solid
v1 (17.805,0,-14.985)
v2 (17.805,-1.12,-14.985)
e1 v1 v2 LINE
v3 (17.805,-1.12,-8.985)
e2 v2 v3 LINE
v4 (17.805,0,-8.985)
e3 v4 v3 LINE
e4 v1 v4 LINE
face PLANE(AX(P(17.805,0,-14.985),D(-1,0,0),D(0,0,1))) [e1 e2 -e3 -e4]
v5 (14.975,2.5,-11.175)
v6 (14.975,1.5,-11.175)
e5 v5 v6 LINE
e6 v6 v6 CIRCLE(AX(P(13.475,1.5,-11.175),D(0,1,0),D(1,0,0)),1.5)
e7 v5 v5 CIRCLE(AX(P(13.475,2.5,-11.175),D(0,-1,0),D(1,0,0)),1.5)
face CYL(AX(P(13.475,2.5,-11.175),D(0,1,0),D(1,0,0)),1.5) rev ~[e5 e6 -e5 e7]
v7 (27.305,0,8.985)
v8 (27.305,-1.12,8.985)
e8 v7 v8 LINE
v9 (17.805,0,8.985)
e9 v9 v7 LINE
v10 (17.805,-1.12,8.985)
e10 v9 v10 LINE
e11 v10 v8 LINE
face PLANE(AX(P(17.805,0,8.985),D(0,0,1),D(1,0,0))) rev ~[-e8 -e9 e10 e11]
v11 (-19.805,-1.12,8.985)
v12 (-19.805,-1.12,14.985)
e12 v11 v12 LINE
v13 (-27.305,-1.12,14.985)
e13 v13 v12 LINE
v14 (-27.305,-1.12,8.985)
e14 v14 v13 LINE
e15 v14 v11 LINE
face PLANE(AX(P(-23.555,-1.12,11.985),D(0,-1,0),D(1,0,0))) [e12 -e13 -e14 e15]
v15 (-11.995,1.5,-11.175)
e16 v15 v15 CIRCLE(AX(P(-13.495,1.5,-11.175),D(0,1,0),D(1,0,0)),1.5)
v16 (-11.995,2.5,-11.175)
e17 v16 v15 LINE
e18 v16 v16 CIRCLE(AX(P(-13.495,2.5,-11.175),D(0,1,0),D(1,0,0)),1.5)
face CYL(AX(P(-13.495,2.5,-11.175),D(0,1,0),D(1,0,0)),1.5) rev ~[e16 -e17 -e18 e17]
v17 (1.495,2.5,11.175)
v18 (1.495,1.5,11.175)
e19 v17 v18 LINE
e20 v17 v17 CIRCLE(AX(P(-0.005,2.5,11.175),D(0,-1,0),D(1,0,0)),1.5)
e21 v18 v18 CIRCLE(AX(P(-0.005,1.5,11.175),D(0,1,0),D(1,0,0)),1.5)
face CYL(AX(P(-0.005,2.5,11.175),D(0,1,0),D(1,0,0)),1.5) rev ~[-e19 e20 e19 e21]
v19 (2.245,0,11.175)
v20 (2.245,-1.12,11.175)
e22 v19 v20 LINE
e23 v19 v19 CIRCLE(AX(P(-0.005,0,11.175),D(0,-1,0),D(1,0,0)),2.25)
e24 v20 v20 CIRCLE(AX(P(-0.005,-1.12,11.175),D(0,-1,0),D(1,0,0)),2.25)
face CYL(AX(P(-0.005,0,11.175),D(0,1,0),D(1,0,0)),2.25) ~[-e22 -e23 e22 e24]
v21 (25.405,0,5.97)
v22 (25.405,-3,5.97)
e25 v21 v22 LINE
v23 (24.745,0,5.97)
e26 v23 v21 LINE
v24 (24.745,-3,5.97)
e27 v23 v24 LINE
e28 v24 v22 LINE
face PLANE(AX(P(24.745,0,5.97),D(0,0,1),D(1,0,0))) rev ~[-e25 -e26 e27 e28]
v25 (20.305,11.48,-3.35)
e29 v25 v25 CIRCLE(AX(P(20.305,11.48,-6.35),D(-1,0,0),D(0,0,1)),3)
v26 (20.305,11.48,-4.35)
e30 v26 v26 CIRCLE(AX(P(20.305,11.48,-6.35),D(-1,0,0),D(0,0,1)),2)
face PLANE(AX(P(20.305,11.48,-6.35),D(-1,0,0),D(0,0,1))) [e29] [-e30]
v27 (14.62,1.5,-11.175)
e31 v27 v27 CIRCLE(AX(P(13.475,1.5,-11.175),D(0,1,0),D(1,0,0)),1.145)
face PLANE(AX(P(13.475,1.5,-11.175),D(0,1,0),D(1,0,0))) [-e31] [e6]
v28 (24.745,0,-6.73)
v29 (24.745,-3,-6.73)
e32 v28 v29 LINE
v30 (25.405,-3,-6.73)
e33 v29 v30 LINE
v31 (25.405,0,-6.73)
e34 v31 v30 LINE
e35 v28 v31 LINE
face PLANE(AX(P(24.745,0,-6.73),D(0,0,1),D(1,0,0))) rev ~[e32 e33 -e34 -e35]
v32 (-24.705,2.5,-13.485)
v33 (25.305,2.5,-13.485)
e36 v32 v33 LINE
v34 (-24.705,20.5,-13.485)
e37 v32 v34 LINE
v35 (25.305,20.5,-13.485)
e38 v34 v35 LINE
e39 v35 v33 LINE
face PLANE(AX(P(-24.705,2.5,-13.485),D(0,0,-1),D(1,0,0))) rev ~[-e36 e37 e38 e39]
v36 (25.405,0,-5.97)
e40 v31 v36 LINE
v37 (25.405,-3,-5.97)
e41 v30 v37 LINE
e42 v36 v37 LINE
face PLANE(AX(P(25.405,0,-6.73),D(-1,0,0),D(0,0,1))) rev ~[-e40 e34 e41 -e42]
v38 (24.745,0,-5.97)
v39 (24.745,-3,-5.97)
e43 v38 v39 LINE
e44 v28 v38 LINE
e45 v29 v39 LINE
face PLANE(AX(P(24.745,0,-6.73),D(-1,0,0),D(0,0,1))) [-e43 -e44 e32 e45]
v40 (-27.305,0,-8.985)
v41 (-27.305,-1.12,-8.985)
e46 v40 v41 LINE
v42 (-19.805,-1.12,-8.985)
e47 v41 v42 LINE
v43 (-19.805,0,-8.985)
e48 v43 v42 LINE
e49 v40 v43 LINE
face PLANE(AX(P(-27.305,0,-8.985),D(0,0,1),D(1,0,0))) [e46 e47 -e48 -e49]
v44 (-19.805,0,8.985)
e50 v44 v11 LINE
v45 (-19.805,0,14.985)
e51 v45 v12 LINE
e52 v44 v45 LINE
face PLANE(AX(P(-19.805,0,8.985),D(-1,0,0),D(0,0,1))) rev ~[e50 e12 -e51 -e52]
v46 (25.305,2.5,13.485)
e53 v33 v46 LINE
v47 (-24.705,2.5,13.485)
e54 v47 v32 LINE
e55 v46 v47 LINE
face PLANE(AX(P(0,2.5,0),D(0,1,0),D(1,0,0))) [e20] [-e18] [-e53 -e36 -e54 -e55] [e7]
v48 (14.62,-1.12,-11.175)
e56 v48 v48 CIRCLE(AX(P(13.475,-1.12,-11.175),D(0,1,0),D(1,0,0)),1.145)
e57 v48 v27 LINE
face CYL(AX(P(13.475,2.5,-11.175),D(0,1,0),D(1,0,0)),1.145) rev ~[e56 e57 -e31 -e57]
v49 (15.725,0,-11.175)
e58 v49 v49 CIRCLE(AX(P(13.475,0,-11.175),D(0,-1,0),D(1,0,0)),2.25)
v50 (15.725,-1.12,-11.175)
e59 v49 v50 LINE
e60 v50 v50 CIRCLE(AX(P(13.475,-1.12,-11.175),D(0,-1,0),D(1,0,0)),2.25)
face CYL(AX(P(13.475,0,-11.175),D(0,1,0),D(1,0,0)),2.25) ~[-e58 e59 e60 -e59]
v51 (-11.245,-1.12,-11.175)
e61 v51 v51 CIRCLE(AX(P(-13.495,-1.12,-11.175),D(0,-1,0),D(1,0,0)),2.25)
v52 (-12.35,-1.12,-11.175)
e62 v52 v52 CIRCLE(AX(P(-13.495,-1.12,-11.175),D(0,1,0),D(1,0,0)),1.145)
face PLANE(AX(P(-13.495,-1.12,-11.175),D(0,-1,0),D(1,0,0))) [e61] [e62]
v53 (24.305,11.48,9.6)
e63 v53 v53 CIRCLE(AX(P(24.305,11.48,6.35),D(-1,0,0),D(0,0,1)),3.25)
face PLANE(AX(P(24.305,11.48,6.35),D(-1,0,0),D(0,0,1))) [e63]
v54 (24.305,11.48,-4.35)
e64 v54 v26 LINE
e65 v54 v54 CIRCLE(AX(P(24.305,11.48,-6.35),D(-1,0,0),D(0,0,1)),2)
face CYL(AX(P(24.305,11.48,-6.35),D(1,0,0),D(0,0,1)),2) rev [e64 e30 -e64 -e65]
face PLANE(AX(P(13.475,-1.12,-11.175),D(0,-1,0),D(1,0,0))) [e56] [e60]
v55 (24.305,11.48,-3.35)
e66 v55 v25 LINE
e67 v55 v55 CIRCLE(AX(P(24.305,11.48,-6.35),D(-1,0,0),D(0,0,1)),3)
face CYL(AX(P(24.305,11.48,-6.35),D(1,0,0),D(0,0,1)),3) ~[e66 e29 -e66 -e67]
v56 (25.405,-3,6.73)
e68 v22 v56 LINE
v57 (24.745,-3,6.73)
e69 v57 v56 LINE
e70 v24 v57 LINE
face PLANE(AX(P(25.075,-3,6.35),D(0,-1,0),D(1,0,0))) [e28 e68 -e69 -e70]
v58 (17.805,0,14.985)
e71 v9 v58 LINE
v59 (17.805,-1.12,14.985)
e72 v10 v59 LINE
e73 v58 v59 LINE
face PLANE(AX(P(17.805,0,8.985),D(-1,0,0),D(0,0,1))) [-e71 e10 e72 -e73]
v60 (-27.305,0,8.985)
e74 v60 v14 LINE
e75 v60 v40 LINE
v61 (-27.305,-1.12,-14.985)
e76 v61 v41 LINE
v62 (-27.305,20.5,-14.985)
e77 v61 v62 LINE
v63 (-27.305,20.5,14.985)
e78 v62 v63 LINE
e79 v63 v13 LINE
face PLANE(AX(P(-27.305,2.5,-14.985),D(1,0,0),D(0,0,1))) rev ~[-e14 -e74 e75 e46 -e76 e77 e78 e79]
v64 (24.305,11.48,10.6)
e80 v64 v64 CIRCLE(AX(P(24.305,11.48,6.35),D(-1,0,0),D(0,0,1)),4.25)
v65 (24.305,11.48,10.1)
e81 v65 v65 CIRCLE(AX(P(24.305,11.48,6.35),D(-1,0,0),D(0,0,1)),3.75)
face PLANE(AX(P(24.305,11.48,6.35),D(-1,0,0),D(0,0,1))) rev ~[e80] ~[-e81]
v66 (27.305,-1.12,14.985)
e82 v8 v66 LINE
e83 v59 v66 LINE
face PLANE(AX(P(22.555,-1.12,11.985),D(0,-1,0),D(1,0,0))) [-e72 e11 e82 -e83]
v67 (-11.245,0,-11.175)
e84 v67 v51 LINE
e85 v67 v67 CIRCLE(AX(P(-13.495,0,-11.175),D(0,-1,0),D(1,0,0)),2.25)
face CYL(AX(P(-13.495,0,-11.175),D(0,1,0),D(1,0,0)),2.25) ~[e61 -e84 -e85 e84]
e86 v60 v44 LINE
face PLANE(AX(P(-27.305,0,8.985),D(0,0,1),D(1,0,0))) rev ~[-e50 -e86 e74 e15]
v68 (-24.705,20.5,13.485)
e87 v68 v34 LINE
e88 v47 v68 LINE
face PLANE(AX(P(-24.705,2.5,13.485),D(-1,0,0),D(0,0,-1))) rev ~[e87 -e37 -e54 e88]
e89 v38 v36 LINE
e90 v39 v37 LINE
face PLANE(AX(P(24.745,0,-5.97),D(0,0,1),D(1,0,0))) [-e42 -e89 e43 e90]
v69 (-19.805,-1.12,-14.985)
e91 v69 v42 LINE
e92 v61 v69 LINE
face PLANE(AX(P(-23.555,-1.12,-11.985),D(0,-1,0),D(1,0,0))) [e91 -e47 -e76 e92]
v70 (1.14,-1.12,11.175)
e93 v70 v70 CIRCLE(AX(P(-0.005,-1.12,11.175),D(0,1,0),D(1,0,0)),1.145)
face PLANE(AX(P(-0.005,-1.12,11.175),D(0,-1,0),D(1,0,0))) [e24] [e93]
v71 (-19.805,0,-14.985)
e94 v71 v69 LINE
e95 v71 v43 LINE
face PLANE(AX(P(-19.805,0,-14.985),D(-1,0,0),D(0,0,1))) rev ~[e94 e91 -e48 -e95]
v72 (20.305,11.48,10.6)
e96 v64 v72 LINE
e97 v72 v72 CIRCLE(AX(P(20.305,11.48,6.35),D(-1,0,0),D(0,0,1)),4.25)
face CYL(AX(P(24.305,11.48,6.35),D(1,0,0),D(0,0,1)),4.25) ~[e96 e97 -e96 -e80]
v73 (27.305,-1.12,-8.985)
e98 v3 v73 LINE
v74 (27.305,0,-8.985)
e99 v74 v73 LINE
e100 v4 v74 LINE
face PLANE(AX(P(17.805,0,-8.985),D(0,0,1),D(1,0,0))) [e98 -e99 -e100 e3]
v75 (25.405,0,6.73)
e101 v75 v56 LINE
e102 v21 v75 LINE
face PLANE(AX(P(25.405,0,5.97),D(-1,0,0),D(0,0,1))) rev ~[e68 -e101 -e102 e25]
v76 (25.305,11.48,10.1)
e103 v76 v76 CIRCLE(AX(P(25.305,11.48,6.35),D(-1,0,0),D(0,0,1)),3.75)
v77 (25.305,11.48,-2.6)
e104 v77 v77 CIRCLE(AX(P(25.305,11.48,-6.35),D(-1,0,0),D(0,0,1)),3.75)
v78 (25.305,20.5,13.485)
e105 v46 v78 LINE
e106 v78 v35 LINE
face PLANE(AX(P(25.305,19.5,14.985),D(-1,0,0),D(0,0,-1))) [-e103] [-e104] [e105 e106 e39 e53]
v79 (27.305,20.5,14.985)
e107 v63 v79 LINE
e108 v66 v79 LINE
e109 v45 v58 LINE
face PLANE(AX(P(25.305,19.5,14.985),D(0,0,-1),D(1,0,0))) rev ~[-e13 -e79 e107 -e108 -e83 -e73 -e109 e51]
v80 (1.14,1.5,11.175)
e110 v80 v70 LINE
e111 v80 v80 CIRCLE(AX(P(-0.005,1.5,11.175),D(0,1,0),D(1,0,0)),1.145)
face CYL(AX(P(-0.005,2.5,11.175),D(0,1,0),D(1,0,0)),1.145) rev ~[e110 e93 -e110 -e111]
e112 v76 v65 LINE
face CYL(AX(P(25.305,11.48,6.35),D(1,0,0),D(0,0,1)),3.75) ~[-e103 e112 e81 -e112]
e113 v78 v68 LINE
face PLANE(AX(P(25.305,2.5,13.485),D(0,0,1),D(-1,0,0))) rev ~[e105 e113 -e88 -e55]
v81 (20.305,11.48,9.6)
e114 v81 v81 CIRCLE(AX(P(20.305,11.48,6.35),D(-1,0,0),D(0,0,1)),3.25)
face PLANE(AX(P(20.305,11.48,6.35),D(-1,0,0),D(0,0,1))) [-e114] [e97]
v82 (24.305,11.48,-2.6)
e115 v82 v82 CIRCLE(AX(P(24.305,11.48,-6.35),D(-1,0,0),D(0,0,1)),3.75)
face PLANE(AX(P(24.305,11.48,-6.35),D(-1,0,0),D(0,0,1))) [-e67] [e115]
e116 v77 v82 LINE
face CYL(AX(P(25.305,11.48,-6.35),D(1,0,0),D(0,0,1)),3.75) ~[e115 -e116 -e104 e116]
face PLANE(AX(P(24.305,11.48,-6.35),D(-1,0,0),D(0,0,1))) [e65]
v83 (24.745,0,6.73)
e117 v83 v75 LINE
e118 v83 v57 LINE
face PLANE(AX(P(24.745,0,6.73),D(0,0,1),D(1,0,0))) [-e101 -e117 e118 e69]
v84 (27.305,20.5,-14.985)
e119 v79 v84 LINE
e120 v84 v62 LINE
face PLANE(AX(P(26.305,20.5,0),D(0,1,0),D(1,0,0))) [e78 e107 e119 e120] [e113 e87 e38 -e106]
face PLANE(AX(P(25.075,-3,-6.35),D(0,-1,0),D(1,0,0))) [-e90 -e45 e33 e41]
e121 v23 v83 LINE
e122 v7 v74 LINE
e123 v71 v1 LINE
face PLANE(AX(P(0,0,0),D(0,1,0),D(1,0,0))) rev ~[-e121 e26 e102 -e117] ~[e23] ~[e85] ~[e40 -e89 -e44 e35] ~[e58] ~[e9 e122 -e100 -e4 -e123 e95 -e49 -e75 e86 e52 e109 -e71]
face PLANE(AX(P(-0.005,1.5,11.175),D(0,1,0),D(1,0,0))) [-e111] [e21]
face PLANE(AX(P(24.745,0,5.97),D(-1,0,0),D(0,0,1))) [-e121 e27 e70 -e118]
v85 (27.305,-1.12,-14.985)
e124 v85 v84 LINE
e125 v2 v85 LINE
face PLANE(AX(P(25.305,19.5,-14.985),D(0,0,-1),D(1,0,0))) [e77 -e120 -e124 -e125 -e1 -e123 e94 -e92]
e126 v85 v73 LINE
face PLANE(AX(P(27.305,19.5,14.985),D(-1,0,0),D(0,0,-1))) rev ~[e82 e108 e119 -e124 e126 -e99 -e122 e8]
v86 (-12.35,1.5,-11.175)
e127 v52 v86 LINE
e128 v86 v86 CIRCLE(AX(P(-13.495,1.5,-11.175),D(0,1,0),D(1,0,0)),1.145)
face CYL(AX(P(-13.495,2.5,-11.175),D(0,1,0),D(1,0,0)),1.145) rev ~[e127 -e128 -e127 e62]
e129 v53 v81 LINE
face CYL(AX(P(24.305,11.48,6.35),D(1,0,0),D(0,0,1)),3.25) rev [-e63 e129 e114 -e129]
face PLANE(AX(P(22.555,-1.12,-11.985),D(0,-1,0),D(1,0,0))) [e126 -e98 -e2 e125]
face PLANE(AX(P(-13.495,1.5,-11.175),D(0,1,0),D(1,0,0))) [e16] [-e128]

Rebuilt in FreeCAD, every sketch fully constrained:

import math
import FreeCAD as App
import Part
import Sketcher

V = App.Vector

doc = App.newDocument("Part")
params = doc.addObject("Spreadsheet::Sheet", "Params")
for row, (alias, value) in enumerate([
    ("sketch1_width", "54.61 mm"),
    ("sketch1_height", "29.97 mm"),
    ("pad1_length", "2.5 mm"),
    ("sketch2_radius", "2 mm"),
    ("sketch2_width", "28 mm"),
    ("sketch2_width2", "24 mm"),
    ("sketch2_height", "1.5 mm"),
    ("sketch2_height2", "29.97 mm"),
    ("pad2_length", "17 mm"),
    ("sketch3_width", "26 mm"),
    ("sketch3_height", "17 mm"),
    ("sketch4_diameter", "2.29 mm"),
    ("sketch5_diameter", "4.5 mm"),
    ("sketch5_height", "6 mm"),
    ("sketch5_width", "7.5 mm"),
    ("sketch5_width2", "9.5 mm"),
    ("pad3_length", "1.12 mm"),
    ("sketch6_diameter", "2.29 mm"),
    ("sketch7_diameter", "3 mm"),
    ("pocket4_length", "1 mm"),
    ("sketch8_width", "0.66 mm"),
    ("sketch8_height", "0.76 mm"),
    ("pad4_length", "3 mm"),
    ("sketch9_diameter", "7.5 mm"),
    ("pad5_length", "1 mm"),
    ("sketch10_diameter", "6 mm"),
    ("sketch10_diameter2", "4 mm"),
    ("pad6_length", "4 mm"),
    ("sketch11_diameter", "8.5 mm"),
    ("sketch11_diameter2", "6.5 mm"),
    ("pad7_length", "4 mm"),
    ("sketch12_width", "26 mm"),
    ("sketch12_height", "4 mm"),
    ("pocket5_length", "17 mm"),
    ("sketch13_height", "1.5 mm"),
    ("sketch13_width", "52.61 mm"),
    ("sketch13_width2", "50.01 mm"),
    ("sketch13_height2", "29.97 mm"),
    ("pad8_length", "18 mm"),
    ("sketch14_width", "2 mm"),
    ("sketch14_height", "29.97 mm"),
    ("pad9_length", "1 mm"),
], start=1):
    params.set(f"A{row}", alias)
    params.set(f"B{row}", "=" + value)
    params.setAlias(f"B{row}", alias)

body = doc.addObject("PartDesign::Body", "Body")

sketch1 = body.newObject("Sketcher::SketchObject", "Sketch")
sketch1.AttachmentSupport = (doc.getObject("XZ_Plane"), [""])
sketch1.MapMode = "FlatFace"
sketch1.addGeometry(Part.LineSegment(V(-27, -15, 0), V(-27, 15, 0)), False)
sketch1.addGeometry(Part.LineSegment(V(-27, 15, 0), V(27, 15, 0)), False)
sketch1.addGeometry(Part.LineSegment(V(27, 15, 0), V(27, -15, 0)), False)
sketch1.addGeometry(Part.LineSegment(V(27, -15, 0), V(-27, -15, 0)), False)
sketch1.addConstraint(Sketcher.Constraint("Coincident", 0, 2, 1, 1))
sketch1.addConstraint(Sketcher.Constraint("Coincident", 1, 2, 2, 1))
sketch1.addConstraint(Sketcher.Constraint("Coincident", 2, 2, 3, 1))
sketch1.addConstraint(Sketcher.Constraint("Coincident", 3, 2, 0, 1))
sketch1.addConstraint(Sketcher.Constraint("Vertical", 0))
sketch1.addConstraint(Sketcher.Constraint("Horizontal", 1))
sketch1.addConstraint(Sketcher.Constraint("Vertical", 2))
sketch1.addConstraint(Sketcher.Constraint("Horizontal", 3))
sketch1.addConstraint(Sketcher.Constraint("Symmetric", 0, 2, 2, 2, -1, 1))
sketch1.addConstraint(Sketcher.Constraint("DistanceX", 1, 1, 1, 2, 54.61))
sketch1.addConstraint(Sketcher.Constraint("DistanceY", 0, 1, 0, 2, 29.97))
sketch1.setExpression("Constraints[9]", "Params.sketch1_width")
sketch1.setExpression("Constraints[10]", "Params.sketch1_height")
pad1 = body.newObject("PartDesign::Pad", "Pad")
pad1.Profile = sketch1
pad1.setExpression("Length", "Params.pad1_length")
pad1.Reversed = True

sketch2 = body.newObject("Sketcher::SketchObject", "Sketch001")
sketch2.AttachmentSupport = (doc.getObject("XZ_Plane"), [""])
sketch2.MapMode = "FlatFace"
sketch2.AttachmentOffset = App.Placement(V(0, 0, -2.5), App.Rotation())
sketch2.addGeometry(Part.LineSegment(V(-0.7, 15, 0), V(27.3, 15, 0)), False)
sketch2.addGeometry(Part.LineSegment(V(27.3, 15, 0), V(27.3, -15, 0)), False)
sketch2.addGeometry(Part.LineSegment(V(27.3, -15, 0), V(-0.7, -15, 0)), False)
sketch2.addGeometry(Part.LineSegment(V(-0.7, -15, 0), V(-0.7, -13.5, 0)), False)
sketch2.addGeometry(Part.LineSegment(V(-0.7, -13.5, 0), V(23.3, -13.5, 0)), False)
sketch2.addGeometry(Part.ArcOfCircle(Part.Circle(V(23.3, -11.5, 0), V(0, 0, 1), 2), math.radians(-90), math.radians(0)), False)
sketch2.addGeometry(Part.LineSegment(V(25.3, -11.5, 0), V(25.3, 11.5, 0)), False)
sketch2.addGeometry(Part.ArcOfCircle(Part.Circle(V(23.3, 11.5, 0), V(0, 0, 1), 2), math.radians(0), math.radians(90)), False)
sketch2.addGeometry(Part.LineSegment(V(23.3, 13.5, 0), V(-0.7, 13.5, 0)), False)
sketch2.addGeometry(Part.LineSegment(V(-0.7, 13.5, 0), V(-0.7, 15, 0)), False)
sketch2.addConstraint(Sketcher.Constraint("Coincident", 0, 2, 1, 1))
sketch2.addConstraint(Sketcher.Constraint("Coincident", 1, 2, 2, 1))
sketch2.addConstraint(Sketcher.Constraint("Coincident", 2, 2, 3, 1))
sketch2.addConstraint(Sketcher.Constraint("Coincident", 3, 2, 4, 1))
sketch2.addConstraint(Sketcher.Constraint("Tangent", 4, 2, 5, 1))
sketch2.addConstraint(Sketcher.Constraint("Tangent", 5, 2, 6, 1))
sketch2.addConstraint(Sketcher.Constraint("Tangent", 6, 2, 7, 1))
sketch2.addConstraint(Sketcher.Constraint("Tangent", 7, 2, 8, 1))
sketch2.addConstraint(Sketcher.Constraint("Coincident", 8, 2, 9, 1))
sketch2.addConstraint(Sketcher.Constraint("Coincident", 9, 2, 0, 1))
sketch2.addConstraint(Sketcher.Constraint("Horizontal", 0))
sketch2.addConstraint(Sketcher.Constraint("Vertical", 1))
sketch2.addConstraint(Sketcher.Constraint("Horizontal", 2))
sketch2.addConstraint(Sketcher.Constraint("Vertical", 3))
sketch2.addConstraint(Sketcher.Constraint("Horizontal", 4))
sketch2.addConstraint(Sketcher.Constraint("Vertical", 6))
sketch2.addConstraint(Sketcher.Constraint("Horizontal", 8))
sketch2.addConstraint(Sketcher.Constraint("Vertical", 9))
sketch2.addConstraint(Sketcher.Constraint("Equal", 5, 7))
sketch2.addConstraint(Sketcher.Constraint("Symmetric", 3, 2, 8, 2, -1))
sketch2.addConstraint(Sketcher.Constraint("Equal", 3, 9))
sketch2.addConstraint(Sketcher.Constraint("Radius", 5, 2.0))
sketch2.addConstraint(Sketcher.Constraint("DistanceX", 0, 1, 0, 2, 28.0))
sketch2.addConstraint(Sketcher.Constraint("DistanceX", 4, 1, 4, 2, 24.0))
sketch2.addConstraint(Sketcher.Constraint("DistanceY", 3, 1, 3, 2, 1.5))
sketch2.addConstraint(Sketcher.Constraint("DistanceY", 1, 2, 1, 1, 29.97))
sketch2.addConstraint(Sketcher.Constraint("DistanceX", -1, 1, 5, 3, 23.305))
sketch2.setExpression("Constraints[21]", "Params.sketch2_radius")
sketch2.setExpression("Constraints[22]", "Params.sketch2_width")
sketch2.setExpression("Constraints[23]", "Params.sketch2_width2")
sketch2.setExpression("Constraints[24]", "Params.sketch2_height")
sketch2.setExpression("Constraints[25]", "Params.sketch2_height2")
pad2 = body.newObject("PartDesign::Pad", "Pad001")
pad2.Profile = sketch2
pad2.setExpression("Length", "Params.pad2_length")
pad2.Reversed = True

sketch3 = body.newObject("Sketcher::SketchObject", "Sketch002")
sketch3.AttachmentSupport = (doc.getObject("XY_Plane"), [""])
sketch3.MapMode = "FlatFace"
sketch3.AttachmentOffset = App.Placement(V(0, 0, 14.985), App.Rotation())
sketch3.addGeometry(Part.LineSegment(V(-1, 2, 0), V(25, 20, 0)), False)
sketch3.addGeometry(Part.LineSegment(V(25, 20, 0), V(-1, 20, 0)), False)
sketch3.addGeometry(Part.LineSegment(V(-1, 20, 0), V(-1, 2, 0)), False)
sketch3.addConstraint(Sketcher.Constraint("Coincident", 0, 2, 1, 1))
sketch3.addConstraint(Sketcher.Constraint("Coincident", 1, 2, 2, 1))
sketch3.addConstraint(Sketcher.Constraint("Coincident", 2, 2, 0, 1))
sketch3.addConstraint(Sketcher.Constraint("Horizontal", 1))
sketch3.addConstraint(Sketcher.Constraint("Vertical", 2))
sketch3.addConstraint(Sketcher.Constraint("DistanceX", 1, 2, 1, 1, 26.0))
sketch3.addConstraint(Sketcher.Constraint("DistanceY", 2, 2, 2, 1, 17.0))
sketch3.addConstraint(Sketcher.Constraint("DistanceY", -1, 1, 0, 2, 19.5))
sketch3.addConstraint(Sketcher.Constraint("DistanceX", -1, 1, 0, 2, 25.305))
sketch3.setExpression("Constraints[5]", "Params.sketch3_width")
sketch3.setExpression("Constraints[6]", "Params.sketch3_height")
pocket1 = body.newObject("PartDesign::Pocket", "Pocket")
pocket1.Profile = sketch3
pocket1.Type = "ThroughAll"

sketch4 = body.newObject("Sketcher::SketchObject", "Sketch003")
sketch4.AttachmentSupport = (doc.getObject("XZ_Plane"), [""])
sketch4.MapMode = "FlatFace"
sketch4.AttachmentOffset = App.Placement(V(0, 0, -2.5), App.Rotation())
sketch4.addGeometry(Part.Circle(V(-13.5, -11.2, 0), V(0, 0, 1), 1.1), False)
sketch4.addGeometry(Part.Circle(V(0, 11.2, 0), V(0, 0, 1), 1.1), False)
sketch4.addGeometry(Part.Circle(V(13.5, -11.2, 0), V(0, 0, 1), 1.1), False)
sketch4.addConstraint(Sketcher.Constraint("Equal", 0, 1))
sketch4.addConstraint(Sketcher.Constraint("Equal", 1, 2))
sketch4.addConstraint(Sketcher.Constraint("Horizontal", 0, 3, 2, 3))
sketch4.addConstraint(Sketcher.Constraint("Diameter", 0, 2.29))
sketch4.addConstraint(Sketcher.Constraint("DistanceX", 0, 3, 1, 3, 13.49))
sketch4.addConstraint(Sketcher.Constraint("DistanceY", 0, 3, 1, 3, 22.35))
sketch4.addConstraint(Sketcher.Constraint("DistanceX", 1, 3, 2, 3, 13.48))
sketch4.addConstraint(Sketcher.Constraint("DistanceX", 0, 3, -1, 1, 13.495))
sketch4.addConstraint(Sketcher.Constraint("DistanceY", 0, 3, -1, 1, 11.175))
sketch4.setExpression("Constraints[3]", "Params.sketch4_diameter")
pocket2 = body.newObject("PartDesign::Pocket", "Pocket001")
pocket2.Profile = sketch4
pocket2.Type = "ThroughAll"
pocket2.Reversed = True

sketch5 = body.newObject("Sketcher::SketchObject", "Sketch004")
sketch5.AttachmentSupport = (doc.getObject("XZ_Plane"), [""])
sketch5.MapMode = "FlatFace"
sketch5.addGeometry(Part.Circle(V(0, 11.2, 0), V(0, 0, 1), 2.2), False)
sketch5.addGeometry(Part.Circle(V(13.5, -11.2, 0), V(0, 0, 1), 2.2), False)
sketch5.addGeometry(Part.Circle(V(-13.5, -11.2, 0), V(0, 0, 1), 2.2), False)
sketch5.addGeometry(Part.LineSegment(V(-27.3, 15, 0), V(-27.3, 9, 0)), False)
sketch5.addGeometry(Part.LineSegment(V(-27.3, 9, 0), V(-19.8, 9, 0)), False)
sketch5.addGeometry(Part.LineSegment(V(-19.8, 9, 0), V(-19.8, 15, 0)), False)
sketch5.addGeometry(Part.LineSegment(V(-19.8, 15, 0), V(-27.3, 15, 0)), False)
sketch5.addGeometry(Part.LineSegment(V(17.8, 15, 0), V(17.8, 9, 0)), False)
sketch5.addGeometry(Part.LineSegment(V(17.8, 9, 0), V(27.3, 9, 0)), False)
sketch5.addGeometry(Part.LineSegment(V(27.3, 9, 0), V(27.3, 15, 0)), False)
sketch5.addGeometry(Part.LineSegment(V(27.3, 15, 0), V(17.8, 15, 0)), False)
sketch5.addGeometry(Part.LineSegment(V(17.8, -9, 0), V(17.8, -15, 0)), False)
sketch5.addGeometry(Part.LineSegment(V(17.8, -15, 0), V(27.3, -15, 0)), False)
sketch5.addGeometry(Part.LineSegment(V(27.3, -15, 0), V(27.3, -9, 0)), False)
sketch5.addGeometry(Part.LineSegment(V(27.3, -9, 0), V(17.8, -9, 0)), False)
sketch5.addGeometry(Part.LineSegment(V(-27.3, -9, 0), V(-27.3, -15, 0)), False)
sketch5.addGeometry(Part.LineSegment(V(-27.3, -15, 0), V(-19.8, -15, 0)), False)
sketch5.addGeometry(Part.LineSegment(V(-19.8, -15, 0), V(-19.8, -9, 0)), False)
sketch5.addGeometry(Part.LineSegment(V(-19.8, -9, 0), V(-27.3, -9, 0)), False)
sketch5.addConstraint(Sketcher.Constraint("Coincident", 3, 2, 4, 1))
sketch5.addConstraint(Sketcher.Constraint("Coincident", 4, 2, 5, 1))
sketch5.addConstraint(Sketcher.Constraint("Coincident", 5, 2, 6, 1))
sketch5.addConstraint(Sketcher.Constraint("Coincident", 6, 2, 3, 1))
sketch5.addConstraint(Sketcher.Constraint("Coincident", 7, 2, 8, 1))
sketch5.addConstraint(Sketcher.Constraint("Coincident", 8, 2, 9, 1))
sketch5.addConstraint(Sketcher.Constraint("Coincident", 9, 2, 10, 1))
sketch5.addConstraint(Sketcher.Constraint("Coincident", 10, 2, 7, 1))
sketch5.addConstraint(Sketcher.Constraint("Coincident", 11, 2, 12, 1))
sketch5.addConstraint(Sketcher.Constraint("Coincident", 12, 2, 13, 1))
sketch5.addConstraint(Sketcher.Constraint("Coincident", 13, 2, 14, 1))
sketch5.addConstraint(Sketcher.Constraint("Coincident", 14, 2, 11, 1))
sketch5.addConstraint(Sketcher.Constraint("Coincident", 15, 2, 16, 1))
sketch5.addConstraint(Sketcher.Constraint("Coincident", 16, 2, 17, 1))
sketch5.addConstraint(Sketcher.Constraint("Coincident", 17, 2, 18, 1))
sketch5.addConstraint(Sketcher.Constraint("Coincident", 18, 2, 15, 1))
sketch5.addConstraint(Sketcher.Constraint("Vertical", 3))
sketch5.addConstraint(Sketcher.Constraint("Horizontal", 4))
sketch5.addConstraint(Sketcher.Constraint("Vertical", 5))
sketch5.addConstraint(Sketcher.Constraint("Horizontal", 6))
sketch5.addConstraint(Sketcher.Constraint("Vertical", 7))
sketch5.addConstraint(Sketcher.Constraint("Horizontal", 8))
sketch5.addConstraint(Sketcher.Constraint("Vertical", 9))
sketch5.addConstraint(Sketcher.Constraint("Horizontal", 10))
sketch5.addConstraint(Sketcher.Constraint("Vertical", 11))
sketch5.addConstraint(Sketcher.Constraint("Horizontal", 12))
sketch5.addConstraint(Sketcher.Constraint("Vertical", 13))
sketch5.addConstraint(Sketcher.Constraint("Horizontal", 14))
sketch5.addConstraint(Sketcher.Constraint("Vertical", 15))
sketch5.addConstraint(Sketcher.Constraint("Horizontal", 16))
sketch5.addConstraint(Sketcher.Constraint("Vertical", 17))
sketch5.addConstraint(Sketcher.Constraint("Horizontal", 18))
sketch5.addConstraint(Sketcher.Constraint("Equal", 0, 1))
sketch5.addConstraint(Sketcher.Constraint("Equal", 1, 2))
sketch5.addConstraint(Sketcher.Constraint("Symmetric", 6, 2, 12, 2, -1, 1))
sketch5.addConstraint(Sketcher.Constraint("Symmetric", 9, 2, 15, 2, -1, 1))
sketch5.addConstraint(Sketcher.Constraint("Symmetric", 3, 2, 8, 2, -2))
sketch5.addConstraint(Sketcher.Constraint("Symmetric", 10, 2, 11, 2, -1))
sketch5.addConstraint(Sketcher.Constraint("Symmetric", 4, 2, 17, 2, -1))
sketch5.addConstraint(Sketcher.Constraint("Horizontal", 1, 3, 2, 3))
sketch5.addConstraint(Sketcher.Constraint("Horizontal", 14, 2, 17, 2))
sketch5.addConstraint(Sketcher.Constraint("Diameter", 0, 4.5))
sketch5.addConstraint(Sketcher.Constraint("DistanceY", 3, 2, 3, 1, 6.0))
sketch5.addConstraint(Sketcher.Constraint("DistanceX", 4, 1, 4, 2, 7.5))
sketch5.addConstraint(Sketcher.Constraint("DistanceX", 8, 1, 8, 2, 9.5))
sketch5.addConstraint(Sketcher.Constraint("DistanceX", 3, 2, 0, 3, 27.3))
sketch5.addConstraint(Sketcher.Constraint("DistanceX", 2, 3, 7, 2, 31.3))
sketch5.addConstraint(Sketcher.Constraint("DistanceX", 0, 3, 1, 3, 13.48))
sketch5.addConstraint(Sketcher.Constraint("DistanceY", 1, 3, 0, 3, 22.35))
sketch5.addConstraint(Sketcher.Constraint("DistanceX", 2, 3, 0, 3, 13.49))
sketch5.addConstraint(Sketcher.Constraint("DistanceY", 2, 3, 3, 2, 20.16))
sketch5.addConstraint(Sketcher.Constraint("DistanceY", 11, 2, 1, 3, 3.81))
sketch5.setExpression("Constraints[41]", "Params.sketch5_diameter")
sketch5.setExpression("Constraints[42]", "Params.sketch5_height")
sketch5.setExpression("Constraints[43]", "Params.sketch5_width")
sketch5.setExpression("Constraints[44]", "Params.sketch5_width2")
pad3 = body.newObject("PartDesign::Pad", "Pad002")
pad3.Profile = sketch5
pad3.setExpression("Length", "Params.pad3_length")

sketch6 = body.newObject("Sketcher::SketchObject", "Sketch005")
sketch6.AttachmentSupport = (doc.getObject("XZ_Plane"), [""])
sketch6.MapMode = "FlatFace"
sketch6.AttachmentOffset = App.Placement(V(0, 0, -2.5), App.Rotation())
sketch6.addGeometry(Part.Circle(V(-13.5, -11.2, 0), V(0, 0, 1), 1.1), False)
sketch6.addGeometry(Part.Circle(V(13.5, -11.2, 0), V(0, 0, 1), 1.1), False)
sketch6.addGeometry(Part.Circle(V(0, 11.2, 0), V(0, 0, 1), 1.1), False)
sketch6.addConstraint(Sketcher.Constraint("Equal", 0, 1))
sketch6.addConstraint(Sketcher.Constraint("Equal", 1, 2))
sketch6.addConstraint(Sketcher.Constraint("Horizontal", 0, 3, 1, 3))
sketch6.addConstraint(Sketcher.Constraint("Diameter", 0, 2.29))
sketch6.addConstraint(Sketcher.Constraint("DistanceX", 0, 3, 1, 3, 26.97))
sketch6.addConstraint(Sketcher.Constraint("DistanceX", 2, 3, 1, 3, 13.48))
sketch6.addConstraint(Sketcher.Constraint("DistanceY", 1, 3, 2, 3, 22.35))
sketch6.addConstraint(Sketcher.Constraint("DistanceX", 0, 3, -1, 1, 13.495))
sketch6.addConstraint(Sketcher.Constraint("DistanceY", 0, 3, -1, 1, 11.175))
sketch6.setExpression("Constraints[3]", "Params.sketch6_diameter")
pocket3 = body.newObject("PartDesign::Pocket", "Pocket002")
pocket3.Profile = sketch6
pocket3.Type = "ThroughAll"
pocket3.Reversed = True

sketch7 = body.newObject("Sketcher::SketchObject", "Sketch006")
sketch7.AttachmentSupport = (doc.getObject("XZ_Plane"), [""])
sketch7.MapMode = "FlatFace"
sketch7.AttachmentOffset = App.Placement(V(0, 0, -2.5), App.Rotation())
sketch7.addGeometry(Part.Circle(V(-13.5, -11.2, 0), V(0, 0, 1), 1.5), False)
sketch7.addGeometry(Part.Circle(V(13.5, -11.2, 0), V(0, 0, 1), 1.5), False)
sketch7.addGeometry(Part.Circle(V(0, 11.2, 0), V(0, 0, 1), 1.5), False)
sketch7.addConstraint(Sketcher.Constraint("Equal", 0, 1))
sketch7.addConstraint(Sketcher.Constraint("Equal", 1, 2))
sketch7.addConstraint(Sketcher.Constraint("Horizontal", 0, 3, 1, 3))
sketch7.addConstraint(Sketcher.Constraint("Diameter", 0, 3.0))
sketch7.addConstraint(Sketcher.Constraint("DistanceX", 0, 3, 1, 3, 26.97))
sketch7.addConstraint(Sketcher.Constraint("DistanceX", 2, 3, 1, 3, 13.48))
sketch7.addConstraint(Sketcher.Constraint("DistanceY", 1, 3, 2, 3, 22.35))
sketch7.addConstraint(Sketcher.Constraint("DistanceX", 0, 3, -1, 1, 13.495))
sketch7.addConstraint(Sketcher.Constraint("DistanceY", 0, 3, -1, 1, 11.175))
sketch7.setExpression("Constraints[3]", "Params.sketch7_diameter")
pocket4 = body.newObject("PartDesign::Pocket", "Pocket003")
pocket4.Profile = sketch7
pocket4.setExpression("Length", "Params.pocket4_length")
pocket4.Reversed = True

sketch8 = body.newObject("Sketcher::SketchObject", "Sketch007")
sketch8.AttachmentSupport = (doc.getObject("XZ_Plane"), [""])
sketch8.MapMode = "FlatFace"
sketch8.addGeometry(Part.LineSegment(V(24.7, 6.7, 0), V(24.7, 6, 0)), False)
sketch8.addGeometry(Part.LineSegment(V(24.7, 6, 0), V(25.4, 6, 0)), False)
sketch8.addGeometry(Part.LineSegment(V(25.4, 6, 0), V(25.4, 6.7, 0)), False)
sketch8.addGeometry(Part.LineSegment(V(25.4, 6.7, 0), V(24.7, 6.7, 0)), False)
sketch8.addGeometry(Part.LineSegment(V(24.7, -6, 0), V(24.7, -6.7, 0)), False)
sketch8.addGeometry(Part.LineSegment(V(24.7, -6.7, 0), V(25.4, -6.7, 0)), False)
sketch8.addGeometry(Part.LineSegment(V(25.4, -6.7, 0), V(25.4, -6, 0)), False)
sketch8.addGeometry(Part.LineSegment(V(25.4, -6, 0), V(24.7, -6, 0)), False)
sketch8.addConstraint(Sketcher.Constraint("Coincident", 0, 2, 1, 1))
sketch8.addConstraint(Sketcher.Constraint("Coincident", 1, 2, 2, 1))
sketch8.addConstraint(Sketcher.Constraint("Coincident", 2, 2, 3, 1))
sketch8.addConstraint(Sketcher.Constraint("Coincident", 3, 2, 0, 1))
sketch8.addConstraint(Sketcher.Constraint("Coincident", 4, 2, 5, 1))
sketch8.addConstraint(Sketcher.Constraint("Coincident", 5, 2, 6, 1))
sketch8.addConstraint(Sketcher.Constraint("Coincident", 6, 2, 7, 1))
sketch8.addConstraint(Sketcher.Constraint("Coincident", 7, 2, 4, 1))
sketch8.addConstraint(Sketcher.Constraint("Vertical", 0))
sketch8.addConstraint(Sketcher.Constraint("Horizontal", 1))
sketch8.addConstraint(Sketcher.Constraint("Vertical", 2))
sketch8.addConstraint(Sketcher.Constraint("Horizontal", 3))
sketch8.addConstraint(Sketcher.Constraint("Vertical", 4))
sketch8.addConstraint(Sketcher.Constraint("Horizontal", 5))
sketch8.addConstraint(Sketcher.Constraint("Vertical", 6))
sketch8.addConstraint(Sketcher.Constraint("Horizontal", 7))
sketch8.addConstraint(Sketcher.Constraint("Symmetric", 3, 2, 4, 2, -1))
sketch8.addConstraint(Sketcher.Constraint("Symmetric", 1, 2, 6, 2, -1))
sketch8.addConstraint(Sketcher.Constraint("DistanceX", 1, 1, 1, 2, 0.66))
sketch8.addConstraint(Sketcher.Constraint("DistanceY", 0, 2, 0, 1, 0.76))
sketch8.addConstraint(Sketcher.Constraint("DistanceY", 4, 2, 0, 2, 12.7))
sketch8.addConstraint(Sketcher.Constraint("DistanceX", -1, 1, 0, 2, 24.745))
sketch8.setExpression("Constraints[18]", "Params.sketch8_width")
sketch8.setExpression("Constraints[19]", "Params.sketch8_height")
pad4 = body.newObject("PartDesign::Pad", "Pad003")
pad4.Profile = sketch8
pad4.setExpression("Length", "Params.pad4_length")

sketch9 = body.newObject("Sketcher::SketchObject", "Sketch008")
sketch9.AttachmentSupport = (doc.getObject("YZ_Plane"), [""])
sketch9.MapMode = "FlatFace"
sketch9.AttachmentOffset = App.Placement(V(0, 0, 25.305), App.Rotation())
sketch9.addGeometry(Part.Circle(V(11.5, -6.3, 0), V(0, 0, 1), 3.8), False)
sketch9.addGeometry(Part.Circle(V(11.5, 6.3, 0), V(0, 0, 1), 3.8), False)
sketch9.addConstraint(Sketcher.Constraint("Equal", 0, 1))
sketch9.addConstraint(Sketcher.Constraint("Symmetric", 0, 3, 1, 3, -1))
sketch9.addConstraint(Sketcher.Constraint("Diameter", 0, 7.5))
sketch9.addConstraint(Sketcher.Constraint("DistanceY", 0, 3, 1, 3, 12.7))
sketch9.addConstraint(Sketcher.Constraint("DistanceX", -1, 1, 0, 3, 11.48))
sketch9.setExpression("Constraints[2]", "Params.sketch9_diameter")
pad5 = body.newObject("PartDesign::Pad", "Pad004")
pad5.Profile = sketch9
pad5.setExpression("Length", "Params.pad5_length")
pad5.Reversed = True

sketch10 = body.newObject("Sketcher::SketchObject", "Sketch009")
sketch10.AttachmentSupport = (doc.getObject("YZ_Plane"), [""])
sketch10.MapMode = "FlatFace"
sketch10.AttachmentOffset = App.Placement(V(0, 0, 24.305), App.Rotation())
sketch10.addGeometry(Part.Circle(V(11.5, -6.3, 0), V(0, 0, 1), 3), False)
sketch10.addGeometry(Part.Circle(V(11.5, -6.3, 0), V(0, 0, 1), 2), False)
sketch10.addConstraint(Sketcher.Constraint("Coincident", 1, 3, 0, 3))
sketch10.addConstraint(Sketcher.Constraint("Diameter", 0, 6.0))
sketch10.addConstraint(Sketcher.Constraint("Diameter", 1, 4.0))
sketch10.addConstraint(Sketcher.Constraint("DistanceX", -1, 1, 0, 3, 11.48))
sketch10.addConstraint(Sketcher.Constraint("DistanceY", 0, 3, -1, 1, 6.35))
sketch10.setExpression("Constraints[1]", "Params.sketch10_diameter")
sketch10.setExpression("Constraints[2]", "Params.sketch10_diameter2")
pad6 = body.newObject("PartDesign::Pad", "Pad005")
pad6.Profile = sketch10
pad6.setExpression("Length", "Params.pad6_length")
pad6.Reversed = True

sketch11 = body.newObject("Sketcher::SketchObject", "Sketch010")
sketch11.AttachmentSupport = (doc.getObject("YZ_Plane"), [""])
sketch11.MapMode = "FlatFace"
sketch11.AttachmentOffset = App.Placement(V(0, 0, 24.305), App.Rotation())
sketch11.addGeometry(Part.Circle(V(11.5, 6.3, 0), V(0, 0, 1), 4.2), False)
sketch11.addGeometry(Part.Circle(V(11.5, 6.3, 0), V(0, 0, 1), 3.2), False)
sketch11.addConstraint(Sketcher.Constraint("Coincident", 1, 3, 0, 3))
sketch11.addConstraint(Sketcher.Constraint("Diameter", 0, 8.5))
sketch11.addConstraint(Sketcher.Constraint("Diameter", 1, 6.5))
sketch11.addConstraint(Sketcher.Constraint("DistanceX", -1, 1, 0, 3, 11.48))
sketch11.addConstraint(Sketcher.Constraint("DistanceY", -1, 1, 0, 3, 6.35))
sketch11.setExpression("Constraints[1]", "Params.sketch11_diameter")
sketch11.setExpression("Constraints[2]", "Params.sketch11_diameter2")
pad7 = body.newObject("PartDesign::Pad", "Pad006")
pad7.Profile = sketch11
pad7.setExpression("Length", "Params.pad7_length")
pad7.Reversed = True

sketch12 = body.newObject("Sketcher::SketchObject", "Sketch011")
sketch12.AttachmentSupport = (doc.getObject("XZ_Plane"), [""])
sketch12.MapMode = "FlatFace"
sketch12.AttachmentOffset = App.Placement(V(0, 0, -19.5), App.Rotation())
sketch12.addGeometry(Part.LineSegment(V(-0.7, 11, 0), V(-0.7, 15, 0)), False)
sketch12.addGeometry(Part.LineSegment(V(-0.7, 15, 0), V(25.3, 15, 0)), False)
sketch12.addGeometry(Part.LineSegment(V(25.3, 15, 0), V(25.3, 11, 0)), False)
sketch12.addGeometry(Part.LineSegment(V(25.3, 11, 0), V(-0.7, 11, 0)), False)
sketch12.addGeometry(Part.LineSegment(V(-0.7, -15, 0), V(-0.7, -11, 0)), False)
sketch12.addGeometry(Part.LineSegment(V(-0.7, -11, 0), V(25.3, -11, 0)), False)
sketch12.addGeometry(Part.LineSegment(V(25.3, -11, 0), V(25.3, -15, 0)), False)
sketch12.addGeometry(Part.LineSegment(V(25.3, -15, 0), V(-0.7, -15, 0)), False)
sketch12.addConstraint(Sketcher.Constraint("Coincident", 0, 2, 1, 1))
sketch12.addConstraint(Sketcher.Constraint("Coincident", 1, 2, 2, 1))
sketch12.addConstraint(Sketcher.Constraint("Coincident", 2, 2, 3, 1))
sketch12.addConstraint(Sketcher.Constraint("Coincident", 3, 2, 0, 1))
sketch12.addConstraint(Sketcher.Constraint("Coincident", 4, 2, 5, 1))
sketch12.addConstraint(Sketcher.Constraint("Coincident", 5, 2, 6, 1))
sketch12.addConstraint(Sketcher.Constraint("Coincident", 6, 2, 7, 1))
sketch12.addConstraint(Sketcher.Constraint("Coincident", 7, 2, 4, 1))
sketch12.addConstraint(Sketcher.Constraint("Vertical", 0))
sketch12.addConstraint(Sketcher.Constraint("Horizontal", 1))
sketch12.addConstraint(Sketcher.Constraint("Vertical", 2))
sketch12.addConstraint(Sketcher.Constraint("Horizontal", 3))
sketch12.addConstraint(Sketcher.Constraint("Vertical", 4))
sketch12.addConstraint(Sketcher.Constraint("Horizontal", 5))
sketch12.addConstraint(Sketcher.Constraint("Vertical", 6))
sketch12.addConstraint(Sketcher.Constraint("Horizontal", 7))
sketch12.addConstraint(Sketcher.Constraint("Symmetric", 3, 2, 4, 2, -1))
sketch12.addConstraint(Sketcher.Constraint("Symmetric", 1, 2, 6, 2, -1))
sketch12.addConstraint(Sketcher.Constraint("DistanceX", 1, 1, 1, 2, 26.0))
sketch12.addConstraint(Sketcher.Constraint("DistanceY", 0, 1, 0, 2, 4.0))
sketch12.addConstraint(Sketcher.Constraint("DistanceY", 4, 2, 3, 2, 21.97))
sketch12.addConstraint(Sketcher.Constraint("DistanceX", 0, 2, -1, 1, 0.695))
sketch12.setExpression("Constraints[18]", "Params.sketch12_width")
sketch12.setExpression("Constraints[19]", "Params.sketch12_height")
pocket5 = body.newObject("PartDesign::Pocket", "Pocket004")
pocket5.Profile = sketch12
pocket5.setExpression("Length", "Params.pocket5_length")
pocket5.Reversed = True

sketch13 = body.newObject("Sketcher::SketchObject", "Sketch012")
sketch13.AttachmentSupport = (doc.getObject("XZ_Plane"), [""])
sketch13.MapMode = "FlatFace"
sketch13.AttachmentOffset = App.Placement(V(0, 0, -2.5), App.Rotation())
sketch13.addGeometry(Part.LineSegment(V(25.3, -13.5, 0), V(25.3, -15, 0)), False)
sketch13.addGeometry(Part.LineSegment(V(25.3, -15, 0), V(-27.3, -15, 0)), False)
sketch13.addGeometry(Part.LineSegment(V(-27.3, -15, 0), V(-27.3, 15, 0)), False)
sketch13.addGeometry(Part.LineSegment(V(-27.3, 15, 0), V(25.3, 15, 0)), False)
sketch13.addGeometry(Part.LineSegment(V(25.3, 15, 0), V(25.3, 13.5, 0)), False)
sketch13.addGeometry(Part.LineSegment(V(25.3, 13.5, 0), V(-24.7, 13.5, 0)), False)
sketch13.addGeometry(Part.LineSegment(V(-24.7, 13.5, 0), V(-24.7, -13.5, 0)), False)
sketch13.addGeometry(Part.LineSegment(V(-24.7, -13.5, 0), V(25.3, -13.5, 0)), False)
sketch13.addConstraint(Sketcher.Constraint("Coincident", 0, 2, 1, 1))
sketch13.addConstraint(Sketcher.Constraint("Coincident", 1, 2, 2, 1))
sketch13.addConstraint(Sketcher.Constraint("Coincident", 2, 2, 3, 1))
sketch13.addConstraint(Sketcher.Constraint("Coincident", 3, 2, 4, 1))
sketch13.addConstraint(Sketcher.Constraint("Coincident", 4, 2, 5, 1))
sketch13.addConstraint(Sketcher.Constraint("Coincident", 5, 2, 6, 1))
sketch13.addConstraint(Sketcher.Constraint("Coincident", 6, 2, 7, 1))
sketch13.addConstraint(Sketcher.Constraint("Coincident", 7, 2, 0, 1))
sketch13.addConstraint(Sketcher.Constraint("Vertical", 0))
sketch13.addConstraint(Sketcher.Constraint("Horizontal", 1))
sketch13.addConstraint(Sketcher.Constraint("Vertical", 2))
sketch13.addConstraint(Sketcher.Constraint("Horizontal", 3))
sketch13.addConstraint(Sketcher.Constraint("Vertical", 4))
sketch13.addConstraint(Sketcher.Constraint("Horizontal", 5))
sketch13.addConstraint(Sketcher.Constraint("Vertical", 6))
sketch13.addConstraint(Sketcher.Constraint("Horizontal", 7))
sketch13.addConstraint(Sketcher.Constraint("Symmetric", 0, 2, 3, 2, -1))
sketch13.addConstraint(Sketcher.Constraint("Equal", 0, 4))
sketch13.addConstraint(Sketcher.Constraint("DistanceY", 0, 2, 0, 1, 1.5))
sketch13.addConstraint(Sketcher.Constraint("DistanceX", 1, 2, 1, 1, 52.61))
sketch13.addConstraint(Sketcher.Constraint("DistanceX", 5, 2, 5, 1, 50.01))
sketch13.addConstraint(Sketcher.Constraint("DistanceY", 2, 1, 2, 2, 29.97))
sketch13.addConstraint(Sketcher.Constraint("DistanceX", -1, 1, 0, 2, 25.305))
sketch13.setExpression("Constraints[18]", "Params.sketch13_height")
sketch13.setExpression("Constraints[19]", "Params.sketch13_width")
sketch13.setExpression("Constraints[20]", "Params.sketch13_width2")
sketch13.setExpression("Constraints[21]", "Params.sketch13_height2")
pad8 = body.newObject("PartDesign::Pad", "Pad007")
pad8.Profile = sketch13
pad8.setExpression("Length", "Params.pad8_length")
pad8.Reversed = True

sketch14 = body.newObject("Sketcher::SketchObject", "Sketch013")
sketch14.AttachmentSupport = (doc.getObject("XZ_Plane"), [""])
sketch14.MapMode = "FlatFace"
sketch14.AttachmentOffset = App.Placement(V(0, 0, -19.5), App.Rotation())
sketch14.addGeometry(Part.LineSegment(V(25.3, -15, 0), V(25.3, 15, 0)), False)
sketch14.addGeometry(Part.LineSegment(V(25.3, 15, 0), V(27.3, 15, 0)), False)
sketch14.addGeometry(Part.LineSegment(V(27.3, 15, 0), V(27.3, -15, 0)), False)
sketch14.addGeometry(Part.LineSegment(V(27.3, -15, 0), V(25.3, -15, 0)), False)
sketch14.addConstraint(Sketcher.Constraint("Coincident", 0, 2, 1, 1))
sketch14.addConstraint(Sketcher.Constraint("Coincident", 1, 2, 2, 1))
sketch14.addConstraint(Sketcher.Constraint("Coincident", 2, 2, 3, 1))
sketch14.addConstraint(Sketcher.Constraint("Coincident", 3, 2, 0, 1))
sketch14.addConstraint(Sketcher.Constraint("Vertical", 0))
sketch14.addConstraint(Sketcher.Constraint("Horizontal", 1))
sketch14.addConstraint(Sketcher.Constraint("Vertical", 2))
sketch14.addConstraint(Sketcher.Constraint("Horizontal", 3))
sketch14.addConstraint(Sketcher.Constraint("DistanceX", 1, 1, 1, 2, 2.0))
sketch14.addConstraint(Sketcher.Constraint("DistanceY", 0, 1, 0, 2, 29.97))
sketch14.addConstraint(Sketcher.Constraint("DistanceX", -1, 1, 0, 2, 25.305))
sketch14.addConstraint(Sketcher.Constraint("DistanceY", -1, 1, 0, 2, 14.985))
sketch14.setExpression("Constraints[8]", "Params.sketch14_width")
sketch14.setExpression("Constraints[9]", "Params.sketch14_height")
pad9 = body.newObject("PartDesign::Pad", "Pad008")
pad9.Profile = sketch14
pad9.setExpression("Length", "Params.pad9_length")
pad9.Reversed = True

doc.recompute()
